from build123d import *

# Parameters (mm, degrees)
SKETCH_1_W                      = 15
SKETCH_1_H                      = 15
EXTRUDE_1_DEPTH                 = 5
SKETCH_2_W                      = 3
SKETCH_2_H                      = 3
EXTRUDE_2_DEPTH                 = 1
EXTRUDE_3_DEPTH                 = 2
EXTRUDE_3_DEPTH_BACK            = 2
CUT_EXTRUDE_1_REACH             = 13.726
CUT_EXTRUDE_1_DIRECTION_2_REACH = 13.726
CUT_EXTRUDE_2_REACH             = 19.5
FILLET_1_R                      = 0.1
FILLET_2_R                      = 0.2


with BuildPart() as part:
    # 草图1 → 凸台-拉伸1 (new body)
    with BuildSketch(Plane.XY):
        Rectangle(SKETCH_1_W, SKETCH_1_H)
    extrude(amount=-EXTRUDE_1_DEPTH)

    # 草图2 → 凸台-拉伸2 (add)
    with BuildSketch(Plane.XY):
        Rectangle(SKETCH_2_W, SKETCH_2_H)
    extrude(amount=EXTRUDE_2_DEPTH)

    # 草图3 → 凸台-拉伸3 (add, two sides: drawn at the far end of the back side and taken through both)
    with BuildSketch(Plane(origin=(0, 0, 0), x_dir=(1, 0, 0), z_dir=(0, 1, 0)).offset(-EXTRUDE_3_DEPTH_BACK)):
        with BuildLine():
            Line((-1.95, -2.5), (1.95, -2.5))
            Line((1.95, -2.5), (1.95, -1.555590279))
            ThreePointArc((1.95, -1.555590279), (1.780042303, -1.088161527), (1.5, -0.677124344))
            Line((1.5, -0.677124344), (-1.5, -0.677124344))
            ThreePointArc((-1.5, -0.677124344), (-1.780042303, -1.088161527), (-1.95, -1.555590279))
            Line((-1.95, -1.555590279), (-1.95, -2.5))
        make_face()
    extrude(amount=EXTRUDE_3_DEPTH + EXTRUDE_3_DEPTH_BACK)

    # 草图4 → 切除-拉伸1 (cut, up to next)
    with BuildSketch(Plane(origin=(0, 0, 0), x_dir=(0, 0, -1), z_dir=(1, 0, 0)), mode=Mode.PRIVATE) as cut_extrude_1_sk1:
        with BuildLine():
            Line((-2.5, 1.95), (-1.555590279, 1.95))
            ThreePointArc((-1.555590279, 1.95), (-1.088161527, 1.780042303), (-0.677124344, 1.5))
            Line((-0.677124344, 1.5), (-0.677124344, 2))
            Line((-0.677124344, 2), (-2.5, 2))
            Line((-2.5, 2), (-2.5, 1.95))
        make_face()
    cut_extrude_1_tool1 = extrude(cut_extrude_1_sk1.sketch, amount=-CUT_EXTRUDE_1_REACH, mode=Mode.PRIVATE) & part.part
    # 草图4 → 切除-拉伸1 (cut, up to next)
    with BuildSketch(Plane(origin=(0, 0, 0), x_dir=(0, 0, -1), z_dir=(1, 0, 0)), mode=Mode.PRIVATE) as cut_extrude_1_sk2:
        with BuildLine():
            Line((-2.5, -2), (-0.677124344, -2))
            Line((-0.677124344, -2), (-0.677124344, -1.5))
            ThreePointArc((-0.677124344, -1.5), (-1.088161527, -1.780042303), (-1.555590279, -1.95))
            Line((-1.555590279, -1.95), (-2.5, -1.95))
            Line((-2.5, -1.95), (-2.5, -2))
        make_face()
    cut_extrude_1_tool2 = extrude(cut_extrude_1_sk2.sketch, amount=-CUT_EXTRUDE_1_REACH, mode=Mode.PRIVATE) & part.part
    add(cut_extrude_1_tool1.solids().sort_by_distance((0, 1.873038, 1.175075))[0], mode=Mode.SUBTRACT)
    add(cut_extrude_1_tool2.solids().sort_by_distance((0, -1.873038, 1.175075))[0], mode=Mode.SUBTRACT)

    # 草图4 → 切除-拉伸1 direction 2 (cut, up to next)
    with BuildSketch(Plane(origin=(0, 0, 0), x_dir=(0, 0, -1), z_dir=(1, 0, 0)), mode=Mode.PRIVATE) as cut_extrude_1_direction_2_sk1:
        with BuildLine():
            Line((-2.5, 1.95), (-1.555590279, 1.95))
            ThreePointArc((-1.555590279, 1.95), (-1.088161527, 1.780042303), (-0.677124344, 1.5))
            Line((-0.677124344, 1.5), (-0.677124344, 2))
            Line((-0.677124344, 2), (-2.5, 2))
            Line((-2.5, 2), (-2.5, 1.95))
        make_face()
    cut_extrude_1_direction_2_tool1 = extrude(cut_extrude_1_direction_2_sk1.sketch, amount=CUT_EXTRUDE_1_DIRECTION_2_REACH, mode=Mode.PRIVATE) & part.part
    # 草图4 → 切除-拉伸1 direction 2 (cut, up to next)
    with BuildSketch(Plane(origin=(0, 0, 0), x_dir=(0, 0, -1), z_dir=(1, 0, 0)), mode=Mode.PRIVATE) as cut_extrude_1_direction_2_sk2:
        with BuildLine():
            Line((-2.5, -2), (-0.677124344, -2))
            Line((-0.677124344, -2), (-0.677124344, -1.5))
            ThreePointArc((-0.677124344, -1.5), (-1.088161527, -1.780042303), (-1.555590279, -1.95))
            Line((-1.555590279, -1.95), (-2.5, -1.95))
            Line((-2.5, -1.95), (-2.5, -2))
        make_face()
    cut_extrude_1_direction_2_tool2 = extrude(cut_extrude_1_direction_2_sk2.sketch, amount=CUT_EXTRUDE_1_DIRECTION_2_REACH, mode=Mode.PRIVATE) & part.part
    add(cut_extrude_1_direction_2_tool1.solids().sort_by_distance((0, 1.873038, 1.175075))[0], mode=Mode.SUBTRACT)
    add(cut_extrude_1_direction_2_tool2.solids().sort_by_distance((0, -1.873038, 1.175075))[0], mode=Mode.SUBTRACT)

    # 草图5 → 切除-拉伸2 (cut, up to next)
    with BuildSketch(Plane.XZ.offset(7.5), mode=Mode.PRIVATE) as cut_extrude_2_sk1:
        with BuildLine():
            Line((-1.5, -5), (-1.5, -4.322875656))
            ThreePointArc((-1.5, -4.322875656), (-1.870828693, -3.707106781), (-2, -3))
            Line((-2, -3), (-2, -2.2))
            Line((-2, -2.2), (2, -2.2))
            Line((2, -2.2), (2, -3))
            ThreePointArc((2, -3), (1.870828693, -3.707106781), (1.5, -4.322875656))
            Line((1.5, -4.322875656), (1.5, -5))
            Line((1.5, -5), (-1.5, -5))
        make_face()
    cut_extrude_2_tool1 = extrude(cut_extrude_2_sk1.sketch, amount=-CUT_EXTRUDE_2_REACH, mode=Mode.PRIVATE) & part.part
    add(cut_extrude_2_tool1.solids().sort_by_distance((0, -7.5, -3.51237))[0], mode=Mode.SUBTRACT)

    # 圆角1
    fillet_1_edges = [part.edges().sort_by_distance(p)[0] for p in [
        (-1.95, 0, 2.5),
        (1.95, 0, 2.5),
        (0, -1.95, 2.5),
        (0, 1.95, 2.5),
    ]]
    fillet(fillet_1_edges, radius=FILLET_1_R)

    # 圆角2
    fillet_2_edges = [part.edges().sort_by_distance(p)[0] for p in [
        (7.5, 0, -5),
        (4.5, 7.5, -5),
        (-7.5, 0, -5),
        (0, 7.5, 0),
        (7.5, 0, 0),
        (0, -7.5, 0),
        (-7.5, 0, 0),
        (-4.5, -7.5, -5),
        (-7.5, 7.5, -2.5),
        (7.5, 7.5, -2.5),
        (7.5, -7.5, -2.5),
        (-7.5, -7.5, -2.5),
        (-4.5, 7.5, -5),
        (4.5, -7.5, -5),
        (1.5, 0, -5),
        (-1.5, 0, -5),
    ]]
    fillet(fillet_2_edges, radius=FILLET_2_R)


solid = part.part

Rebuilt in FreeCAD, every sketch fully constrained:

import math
import FreeCAD as App
import Part
import Sketcher
from FreeCAD import Vector


def edges_at(feature, points):
    """Names of the edges that pass closest to the given points."""
    edges = feature.Shape.Edges
    near = lambda p: min(range(len(edges)), key=lambda i: edges[i].distToShape(Part.Vertex(*p))[0])
    return sorted({f"Edge{near(p) + 1}" for p in points})


def add_polygon(sketch, points):
    """Adds a closed chain of lines whose ends are joined by coincident constraints."""
    first, n = sketch.GeometryCount, len(points)
    for a, b in zip(points, points[1:] + points[:1]):
        sketch.addGeometry(Part.LineSegment(App.Vector(*a, 0), App.Vector(*b, 0)), False)
    for i in range(n):
        sketch.addConstraint(Sketcher.Constraint("Coincident", first + i, 2, first + (i + 1) % n, 1))

doc = App.newDocument("Part")
body = doc.addObject("PartDesign::Body", "Body")

# Sketch on XY plane
sketch1 = body.newObject("Sketcher::SketchObject", "Sketch")
sketch1.AttachmentSupport = (doc.getObject("XY_Plane"), [""])
sketch1.MapMode = "FlatFace"
add_polygon(sketch1, [(-8, 8), (-8, -8), (8, -8), (8, 8)])  # lines 0-3
sketch1.addConstraint([
    Sketcher.Constraint("Vertical", 0),
    Sketcher.Constraint("Horizontal", 1),
    Sketcher.Constraint("Vertical", 2),
    Sketcher.Constraint("Horizontal", 3),
    Sketcher.Constraint("Symmetric", 0, 2, 2, 2, -1, 1),
    Sketcher.Constraint("Equal", 3, 0),
    Sketcher.Constraint("DistanceX", 1, 1, 1, 2, 15.0),
])
pad1 = body.newObject("PartDesign::Pad", "Pad")
pad1.Profile = sketch1
pad1.Length = 5
pad1.Reversed = True

# Sketch on XY plane
sketch2 = body.newObject("Sketcher::SketchObject", "Sketch001")
sketch2.AttachmentSupport = (doc.getObject("XY_Plane"), [""])
sketch2.MapMode = "FlatFace"
add_polygon(sketch2, [(-1.5, 1.5), (-1.5, -1.5), (1.5, -1.5), (1.5, 1.5)])  # lines 0-3
sketch2.addConstraint([
    Sketcher.Constraint("Vertical", 0),
    Sketcher.Constraint("Horizontal", 1),
    Sketcher.Constraint("Vertical", 2),
    Sketcher.Constraint("Horizontal", 3),
    Sketcher.Constraint("Symmetric", 0, 2, 2, 2, -1, 1),
    Sketcher.Constraint("Equal", 3, 0),
    Sketcher.Constraint("DistanceX", 1, 1, 1, 2, 3.0),
])
pad2 = body.newObject("PartDesign::Pad", "Pad001")
pad2.Profile = sketch2
pad2.Length = 1

# Sketch on XZ plane
sketch3 = body.newObject("Sketcher::SketchObject", "Sketch002")
sketch3.AttachmentSupport = (doc.getObject("XZ_Plane"), [""])
sketch3.MapMode = "FlatFace"
sketch3.addGeometry([
    Part.LineSegment(Vector(-1.9, 2.5, 0), Vector(1.9, 2.5, 0)),  # 0
    Part.LineSegment(Vector(1.9, 2.5, 0), Vector(1.9, 1.6, 0)),  # 1
    Part.ArcOfCircle(Part.Circle(Vector(0, 2, 0), Vector(0, 0, 1), 2), math.radians(-41), math.radians(-13)),  # 2
    Part.LineSegment(Vector(1.5, 0.7, 0), Vector(-1.5, 0.7, 0)),  # 3
    Part.ArcOfCircle(Part.Circle(Vector(0, 2, 0), Vector(0, 0, 1), 2), math.radians(-167), math.radians(-139)),  # 4
    Part.LineSegment(Vector(-1.9, 1.6, 0), Vector(-1.9, 2.5, 0)),  # 5
], False)
sketch3.addConstraint([
    Sketcher.Constraint("Coincident", 0, 2, 1, 1),
    Sketcher.Constraint("Coincident", 1, 2, 2, 2),
    Sketcher.Constraint("Coincident", 2, 1, 3, 1),
    Sketcher.Constraint("Coincident", 3, 2, 4, 2),
    Sketcher.Constraint("Coincident", 4, 1, 5, 1),
    Sketcher.Constraint("Coincident", 5, 2, 0, 1),
    Sketcher.Constraint("Horizontal", 0),
    Sketcher.Constraint("Vertical", 1),
    Sketcher.Constraint("Horizontal", 3),
    Sketcher.Constraint("Vertical", 5),
    Sketcher.Constraint("Coincident", 4, 3, 2, 3),
    Sketcher.Constraint("Equal", 2, 4),
    Sketcher.Constraint("Symmetric", 1, 2, 4, 1, -2),
    Sketcher.Constraint("Radius", 2, 2.0),
    Sketcher.Constraint("DistanceX", 3, 2, 3, 1, 3.0),
    Sketcher.Constraint("DistanceX", 0, 1, 0, 2, 3.9),
    Sketcher.Constraint("DistanceY", -1, 1, 2, 3, 2.0),
    Sketcher.Constraint("DistanceY", -1, 1, 0, 2, 2.5),
])
pad3 = body.newObject("PartDesign::Pad", "Pad002")
pad3.Profile = sketch3
pad3.Type = "TwoLengths"
pad3.Length = 2
pad3.Length2 = 2
pad3.Reversed = True

# Sketch on YZ plane
sketch4 = body.newObject("Sketcher::SketchObject", "Sketch003")
sketch4.AttachmentSupport = (doc.getObject("YZ_Plane"), [""])
sketch4.MapMode = "FlatFace"
sketch4.addGeometry([
    Part.LineSegment(Vector(1.95, 2.5, 0), Vector(1.95, 1.56, 0)),  # 0
    Part.ArcOfCircle(Part.Circle(Vector(0, 2, 0), Vector(0, 0, 1), 2), math.radians(-41), math.radians(-13)),  # 1
    Part.LineSegment(Vector(1.5, 0.68, 0), Vector(2, 0.68, 0)),  # 2
    Part.LineSegment(Vector(2, 0.68, 0), Vector(2, 2.5, 0)),  # 3
    Part.LineSegment(Vector(2, 2.5, 0), Vector(1.95, 2.5, 0)),  # 4
], False)
sketch4.addConstraint([
    Sketcher.Constraint("Coincident", 0, 2, 1, 2),
    Sketcher.Constraint("Coincident", 1, 1, 2, 1),
    Sketcher.Constraint("Coincident", 2, 2, 3, 1),
    Sketcher.Constraint("Coincident", 3, 2, 4, 1),
    Sketcher.Constraint("Coincident", 4, 2, 0, 1),
    Sketcher.Constraint("Vertical", 0),
    Sketcher.Constraint("Horizontal", 2),
    Sketcher.Constraint("Vertical", 3),
    Sketcher.Constraint("Horizontal", 4),
    Sketcher.Constraint("PointOnObject", 1, 3, -2),
    Sketcher.Constraint("Radius", 1, 2.0),
    Sketcher.Constraint("DistanceX", 2, 1, 2, 2, 0.5),
    Sketcher.Constraint("DistanceY", -1, 1, 1, 3, 2.0),
    Sketcher.Constraint("DistanceX", -1, 1, 2, 2, 2.0),
    Sketcher.Constraint("DistanceX", 4, 2, 4, 1, 0.05),
    Sketcher.Constraint("DistanceY", -1, 1, 3, 2, 2.5),
])
pocket1 = body.newObject("PartDesign::Pocket", "Pocket")
pocket1.Profile = sketch4
pocket1.Type = "UpToFirst"

# Sketch on YZ plane
sketch5 = body.newObject("Sketcher::SketchObject", "Sketch004")
sketch5.AttachmentSupport = (doc.getObject("YZ_Plane"), [""])
sketch5.MapMode = "FlatFace"
sketch5.addGeometry([
    Part.LineSegment(Vector(-2, 2.5, 0), Vector(-2, 0.68, 0)),  # 0
    Part.LineSegment(Vector(-2, 0.68, 0), Vector(-1.5, 0.68, 0)),  # 1
    Part.ArcOfCircle(Part.Circle(Vector(0, 2, 0), Vector(0, 0, 1), 2), math.radians(-167), math.radians(-139)),  # 2
    Part.LineSegment(Vector(-1.95, 1.56, 0), Vector(-1.95, 2.5, 0)),  # 3
    Part.LineSegment(Vector(-1.95, 2.5, 0), Vector(-2, 2.5, 0)),  # 4
], False)
sketch5.addConstraint([
    Sketcher.Constraint("Coincident", 0, 2, 1, 1),
    Sketcher.Constraint("Coincident", 1, 2, 2, 2),
    Sketcher.Constraint("Coincident", 2, 1, 3, 1),
    Sketcher.Constraint("Coincident", 3, 2, 4, 1),
    Sketcher.Constraint("Coincident", 4, 2, 0, 1),
    Sketcher.Constraint("Vertical", 0),
    Sketcher.Constraint("Horizontal", 1),
    Sketcher.Constraint("Vertical", 3),
    Sketcher.Constraint("Horizontal", 4),
    Sketcher.Constraint("PointOnObject", 2, 3, -2),
    Sketcher.Constraint("Radius", 2, 2.0),
    Sketcher.Constraint("DistanceX", 1, 1, 1, 2, 0.5),
    Sketcher.Constraint("DistanceY", -1, 1, 2, 3, 2.0),
    Sketcher.Constraint("DistanceX", 0, 2, -1, 1, 2.0),
    Sketcher.Constraint("DistanceX", 4, 2, 4, 1, 0.05),
    Sketcher.Constraint("DistanceY", -1, 1, 3, 2, 2.5),
])
pocket2 = body.newObject("PartDesign::Pocket", "Pocket001")
pocket2.Profile = sketch5
pocket2.Type = "UpToFirst"

# Sketch on YZ plane
sketch6 = body.newObject("Sketcher::SketchObject", "Sketch005")
sketch6.AttachmentSupport = (doc.getObject("YZ_Plane"), [""])
sketch6.MapMode = "FlatFace"
sketch6.addGeometry([
    Part.LineSegment(Vector(1.95, 2.5, 0), Vector(1.95, 1.56, 0)),  # 0
    Part.ArcOfCircle(Part.Circle(Vector(0, 2, 0), Vector(0, 0, 1), 2), math.radians(-41), math.radians(-13)),  # 1
    Part.LineSegment(Vector(1.5, 0.68, 0), Vector(2, 0.68, 0)),  # 2
    Part.LineSegment(Vector(2, 0.68, 0), Vector(2, 2.5, 0)),  # 3
    Part.LineSegment(Vector(2, 2.5, 0), Vector(1.95, 2.5, 0)),  # 4
], False)
sketch6.addConstraint([
    Sketcher.Constraint("Coincident", 0, 2, 1, 2),
    Sketcher.Constraint("Coincident", 1, 1, 2, 1),
    Sketcher.Constraint("Coincident", 2, 2, 3, 1),
    Sketcher.Constraint("Coincident", 3, 2, 4, 1),
    Sketcher.Constraint("Coincident", 4, 2, 0, 1),
    Sketcher.Constraint("Vertical", 0),
    Sketcher.Constraint("Horizontal", 2),
    Sketcher.Constraint("Vertical", 3),
    Sketcher.Constraint("Horizontal", 4),
    Sketcher.Constraint("PointOnObject", 1, 3, -2),
    Sketcher.Constraint("Radius", 1, 2.0),
    Sketcher.Constraint("DistanceX", 2, 1, 2, 2, 0.5),
    Sketcher.Constraint("DistanceY", -1, 1, 1, 3, 2.0),
    Sketcher.Constraint("DistanceX", -1, 1, 2, 2, 2.0),
    Sketcher.Constraint("DistanceX", 4, 2, 4, 1, 0.05),
    Sketcher.Constraint("DistanceY", -1, 1, 3, 2, 2.5),
])
pocket3 = body.newObject("PartDesign::Pocket", "Pocket002")
pocket3.Profile = sketch6
pocket3.Type = "UpToFirst"
pocket3.Reversed = True

# Sketch on YZ plane
sketch7 = body.newObject("Sketcher::SketchObject", "Sketch006")
sketch7.AttachmentSupport = (doc.getObject("YZ_Plane"), [""])
sketch7.MapMode = "FlatFace"
sketch7.addGeometry([
    Part.LineSegment(Vector(-2, 2.5, 0), Vector(-2, 0.68, 0)),  # 0
    Part.LineSegment(Vector(-2, 0.68, 0), Vector(-1.5, 0.68, 0)),  # 1
    Part.ArcOfCircle(Part.Circle(Vector(0, 2, 0), Vector(0, 0, 1), 2), math.radians(-167), math.radians(-139)),  # 2
    Part.LineSegment(Vector(-1.95, 1.56, 0), Vector(-1.95, 2.5, 0)),  # 3
    Part.LineSegment(Vector(-1.95, 2.5, 0), Vector(-2, 2.5, 0)),  # 4
], False)
sketch7.addConstraint([
    Sketcher.Constraint("Coincident", 0, 2, 1, 1),
    Sketcher.Constraint("Coincident", 1, 2, 2, 2),
    Sketcher.Constraint("Coincident", 2, 1, 3, 1),
    Sketcher.Constraint("Coincident", 3, 2, 4, 1),
    Sketcher.Constraint("Coincident", 4, 2, 0, 1),
    Sketcher.Constraint("Vertical", 0),
    Sketcher.Constraint("Horizontal", 1),
    Sketcher.Constraint("Vertical", 3),
    Sketcher.Constraint("Horizontal", 4),
    Sketcher.Constraint("PointOnObject", 2, 3, -2),
    Sketcher.Constraint("Radius", 2, 2.0),
    Sketcher.Constraint("DistanceX", 1, 1, 1, 2, 0.5),
    Sketcher.Constraint("DistanceY", -1, 1, 2, 3, 2.0),
    Sketcher.Constraint("DistanceX", 0, 2, -1, 1, 2.0),
    Sketcher.Constraint("DistanceX", 4, 2, 4, 1, 0.05),
    Sketcher.Constraint("DistanceY", -1, 1, 3, 2, 2.5),
])
pocket4 = body.newObject("PartDesign::Pocket", "Pocket003")
pocket4.Profile = sketch7
pocket4.Type = "UpToFirst"
pocket4.Reversed = True

# Sketch on XZ plane
sketch8 = body.newObject("Sketcher::SketchObject", "Sketch007")
sketch8.AttachmentSupport = (doc.getObject("XZ_Plane"), [""])
sketch8.MapMode = "FlatFace"
sketch8.AttachmentOffset = App.Placement(Vector(0, 0, 7.5), App.Rotation())
sketch8.addGeometry([
    Part.LineSegment(Vector(-1.5, -4.3, 0), Vector(-1.5, -5, 0)),  # 0
    Part.LineSegment(Vector(-1.5, -5, 0), Vector(1.5, -5, 0)),  # 1
    Part.LineSegment(Vector(1.5, -5, 0), Vector(1.5, -4.3, 0)),  # 2
    Part.ArcOfCircle(Part.Circle(Vector(0, -3, 0), Vector(0, 0, 1), 2), math.radians(-41), math.radians(0)),  # 3
    Part.LineSegment(Vector(2, -3, 0), Vector(2, -2.2, 0)),  # 4
    Part.LineSegment(Vector(2, -2.2, 0), Vector(-2, -2.2, 0)),  # 5
    Part.LineSegment(Vector(-2, -2.2, 0), Vector(-2, -3, 0)),  # 6
    Part.ArcOfCircle(Part.Circle(Vector(0, -3, 0), Vector(0, 0, 1), 2), math.radians(-180), math.radians(-139)),  # 7
], False)
sketch8.addConstraint([
    Sketcher.Constraint("Coincident", 0, 2, 1, 1),
    Sketcher.Constraint("Coincident", 1, 2, 2, 1),
    Sketcher.Constraint("Coincident", 2, 2, 3, 1),
    Sketcher.Constraint("Tangent", 3, 2, 4, 1),
    Sketcher.Constraint("Coincident", 4, 2, 5, 1),
    Sketcher.Constraint("Coincident", 5, 2, 6, 1),
    Sketcher.Constraint("Tangent", 6, 2, 7, 1),
    Sketcher.Constraint("Coincident", 7, 2, 0, 1),
    Sketcher.Constraint("Vertical", 0),
    Sketcher.Constraint("Horizontal", 1),
    Sketcher.Constraint("Vertical", 2),
    Sketcher.Constraint("Vertical", 4),
    Sketcher.Constraint("Horizontal", 5),
    Sketcher.Constraint("Vertical", 6),
    Sketcher.Constraint("Coincident", 7, 3, 3, 3),
    Sketcher.Constraint("Equal", 3, 7),
    Sketcher.Constraint("Symmetric", 2, 2, 7, 2, -2),
    Sketcher.Constraint("Radius", 3, 2.0),
    Sketcher.Constraint("DistanceX", 1, 1, 1, 2, 3.0),
    Sketcher.Constraint("DistanceY", 4, 1, 4, 2, 0.8),
    Sketcher.Constraint("DistanceY", 3, 3, -1, 1, 3.0),
    Sketcher.Constraint("DistanceY", 0, 2, -1, 1, 5.0),
])
pocket5 = body.newObject("PartDesign::Pocket", "Pocket004")
pocket5.Profile = sketch8
pocket5.Type = "UpToFirst"
doc.recompute()

fillet = body.newObject("PartDesign::Fillet", "Fillet")
fillet.Base = (pocket5, edges_at(pocket5, [
    (-1.95, 0, 2.5),
    (1.95, 0, 2.5),
    (0, -1.95, 2.5),
    (0, 1.95, 2.5),
]))
fillet.Radius = 0.1
doc.recompute()

fillet2 = body.newObject("PartDesign::Fillet", "Fillet001")
fillet2.Base = (fillet, edges_at(fillet, [
    (7.5, 0, -5),
    (4.5, 7.5, -5),
    (-7.5, 0, -5),
    (0, 7.5, 0),
    (7.5, 0, 0),
    (0, -7.5, 0),
    (-7.5, 0, 0),
    (-4.5, -7.5, -5),
    (-7.5, 7.5, -2.5),
    (7.5, 7.5, -2.5),
    (7.5, -7.5, -2.5),
    (-7.5, -7.5, -2.5),
    (-4.5, 7.5, -5),
    (4.5, -7.5, -5),
    (1.5, 0, -5),
    (-1.5, 0, -5),
]))
fillet2.Radius = 0.2

doc.recompute()
